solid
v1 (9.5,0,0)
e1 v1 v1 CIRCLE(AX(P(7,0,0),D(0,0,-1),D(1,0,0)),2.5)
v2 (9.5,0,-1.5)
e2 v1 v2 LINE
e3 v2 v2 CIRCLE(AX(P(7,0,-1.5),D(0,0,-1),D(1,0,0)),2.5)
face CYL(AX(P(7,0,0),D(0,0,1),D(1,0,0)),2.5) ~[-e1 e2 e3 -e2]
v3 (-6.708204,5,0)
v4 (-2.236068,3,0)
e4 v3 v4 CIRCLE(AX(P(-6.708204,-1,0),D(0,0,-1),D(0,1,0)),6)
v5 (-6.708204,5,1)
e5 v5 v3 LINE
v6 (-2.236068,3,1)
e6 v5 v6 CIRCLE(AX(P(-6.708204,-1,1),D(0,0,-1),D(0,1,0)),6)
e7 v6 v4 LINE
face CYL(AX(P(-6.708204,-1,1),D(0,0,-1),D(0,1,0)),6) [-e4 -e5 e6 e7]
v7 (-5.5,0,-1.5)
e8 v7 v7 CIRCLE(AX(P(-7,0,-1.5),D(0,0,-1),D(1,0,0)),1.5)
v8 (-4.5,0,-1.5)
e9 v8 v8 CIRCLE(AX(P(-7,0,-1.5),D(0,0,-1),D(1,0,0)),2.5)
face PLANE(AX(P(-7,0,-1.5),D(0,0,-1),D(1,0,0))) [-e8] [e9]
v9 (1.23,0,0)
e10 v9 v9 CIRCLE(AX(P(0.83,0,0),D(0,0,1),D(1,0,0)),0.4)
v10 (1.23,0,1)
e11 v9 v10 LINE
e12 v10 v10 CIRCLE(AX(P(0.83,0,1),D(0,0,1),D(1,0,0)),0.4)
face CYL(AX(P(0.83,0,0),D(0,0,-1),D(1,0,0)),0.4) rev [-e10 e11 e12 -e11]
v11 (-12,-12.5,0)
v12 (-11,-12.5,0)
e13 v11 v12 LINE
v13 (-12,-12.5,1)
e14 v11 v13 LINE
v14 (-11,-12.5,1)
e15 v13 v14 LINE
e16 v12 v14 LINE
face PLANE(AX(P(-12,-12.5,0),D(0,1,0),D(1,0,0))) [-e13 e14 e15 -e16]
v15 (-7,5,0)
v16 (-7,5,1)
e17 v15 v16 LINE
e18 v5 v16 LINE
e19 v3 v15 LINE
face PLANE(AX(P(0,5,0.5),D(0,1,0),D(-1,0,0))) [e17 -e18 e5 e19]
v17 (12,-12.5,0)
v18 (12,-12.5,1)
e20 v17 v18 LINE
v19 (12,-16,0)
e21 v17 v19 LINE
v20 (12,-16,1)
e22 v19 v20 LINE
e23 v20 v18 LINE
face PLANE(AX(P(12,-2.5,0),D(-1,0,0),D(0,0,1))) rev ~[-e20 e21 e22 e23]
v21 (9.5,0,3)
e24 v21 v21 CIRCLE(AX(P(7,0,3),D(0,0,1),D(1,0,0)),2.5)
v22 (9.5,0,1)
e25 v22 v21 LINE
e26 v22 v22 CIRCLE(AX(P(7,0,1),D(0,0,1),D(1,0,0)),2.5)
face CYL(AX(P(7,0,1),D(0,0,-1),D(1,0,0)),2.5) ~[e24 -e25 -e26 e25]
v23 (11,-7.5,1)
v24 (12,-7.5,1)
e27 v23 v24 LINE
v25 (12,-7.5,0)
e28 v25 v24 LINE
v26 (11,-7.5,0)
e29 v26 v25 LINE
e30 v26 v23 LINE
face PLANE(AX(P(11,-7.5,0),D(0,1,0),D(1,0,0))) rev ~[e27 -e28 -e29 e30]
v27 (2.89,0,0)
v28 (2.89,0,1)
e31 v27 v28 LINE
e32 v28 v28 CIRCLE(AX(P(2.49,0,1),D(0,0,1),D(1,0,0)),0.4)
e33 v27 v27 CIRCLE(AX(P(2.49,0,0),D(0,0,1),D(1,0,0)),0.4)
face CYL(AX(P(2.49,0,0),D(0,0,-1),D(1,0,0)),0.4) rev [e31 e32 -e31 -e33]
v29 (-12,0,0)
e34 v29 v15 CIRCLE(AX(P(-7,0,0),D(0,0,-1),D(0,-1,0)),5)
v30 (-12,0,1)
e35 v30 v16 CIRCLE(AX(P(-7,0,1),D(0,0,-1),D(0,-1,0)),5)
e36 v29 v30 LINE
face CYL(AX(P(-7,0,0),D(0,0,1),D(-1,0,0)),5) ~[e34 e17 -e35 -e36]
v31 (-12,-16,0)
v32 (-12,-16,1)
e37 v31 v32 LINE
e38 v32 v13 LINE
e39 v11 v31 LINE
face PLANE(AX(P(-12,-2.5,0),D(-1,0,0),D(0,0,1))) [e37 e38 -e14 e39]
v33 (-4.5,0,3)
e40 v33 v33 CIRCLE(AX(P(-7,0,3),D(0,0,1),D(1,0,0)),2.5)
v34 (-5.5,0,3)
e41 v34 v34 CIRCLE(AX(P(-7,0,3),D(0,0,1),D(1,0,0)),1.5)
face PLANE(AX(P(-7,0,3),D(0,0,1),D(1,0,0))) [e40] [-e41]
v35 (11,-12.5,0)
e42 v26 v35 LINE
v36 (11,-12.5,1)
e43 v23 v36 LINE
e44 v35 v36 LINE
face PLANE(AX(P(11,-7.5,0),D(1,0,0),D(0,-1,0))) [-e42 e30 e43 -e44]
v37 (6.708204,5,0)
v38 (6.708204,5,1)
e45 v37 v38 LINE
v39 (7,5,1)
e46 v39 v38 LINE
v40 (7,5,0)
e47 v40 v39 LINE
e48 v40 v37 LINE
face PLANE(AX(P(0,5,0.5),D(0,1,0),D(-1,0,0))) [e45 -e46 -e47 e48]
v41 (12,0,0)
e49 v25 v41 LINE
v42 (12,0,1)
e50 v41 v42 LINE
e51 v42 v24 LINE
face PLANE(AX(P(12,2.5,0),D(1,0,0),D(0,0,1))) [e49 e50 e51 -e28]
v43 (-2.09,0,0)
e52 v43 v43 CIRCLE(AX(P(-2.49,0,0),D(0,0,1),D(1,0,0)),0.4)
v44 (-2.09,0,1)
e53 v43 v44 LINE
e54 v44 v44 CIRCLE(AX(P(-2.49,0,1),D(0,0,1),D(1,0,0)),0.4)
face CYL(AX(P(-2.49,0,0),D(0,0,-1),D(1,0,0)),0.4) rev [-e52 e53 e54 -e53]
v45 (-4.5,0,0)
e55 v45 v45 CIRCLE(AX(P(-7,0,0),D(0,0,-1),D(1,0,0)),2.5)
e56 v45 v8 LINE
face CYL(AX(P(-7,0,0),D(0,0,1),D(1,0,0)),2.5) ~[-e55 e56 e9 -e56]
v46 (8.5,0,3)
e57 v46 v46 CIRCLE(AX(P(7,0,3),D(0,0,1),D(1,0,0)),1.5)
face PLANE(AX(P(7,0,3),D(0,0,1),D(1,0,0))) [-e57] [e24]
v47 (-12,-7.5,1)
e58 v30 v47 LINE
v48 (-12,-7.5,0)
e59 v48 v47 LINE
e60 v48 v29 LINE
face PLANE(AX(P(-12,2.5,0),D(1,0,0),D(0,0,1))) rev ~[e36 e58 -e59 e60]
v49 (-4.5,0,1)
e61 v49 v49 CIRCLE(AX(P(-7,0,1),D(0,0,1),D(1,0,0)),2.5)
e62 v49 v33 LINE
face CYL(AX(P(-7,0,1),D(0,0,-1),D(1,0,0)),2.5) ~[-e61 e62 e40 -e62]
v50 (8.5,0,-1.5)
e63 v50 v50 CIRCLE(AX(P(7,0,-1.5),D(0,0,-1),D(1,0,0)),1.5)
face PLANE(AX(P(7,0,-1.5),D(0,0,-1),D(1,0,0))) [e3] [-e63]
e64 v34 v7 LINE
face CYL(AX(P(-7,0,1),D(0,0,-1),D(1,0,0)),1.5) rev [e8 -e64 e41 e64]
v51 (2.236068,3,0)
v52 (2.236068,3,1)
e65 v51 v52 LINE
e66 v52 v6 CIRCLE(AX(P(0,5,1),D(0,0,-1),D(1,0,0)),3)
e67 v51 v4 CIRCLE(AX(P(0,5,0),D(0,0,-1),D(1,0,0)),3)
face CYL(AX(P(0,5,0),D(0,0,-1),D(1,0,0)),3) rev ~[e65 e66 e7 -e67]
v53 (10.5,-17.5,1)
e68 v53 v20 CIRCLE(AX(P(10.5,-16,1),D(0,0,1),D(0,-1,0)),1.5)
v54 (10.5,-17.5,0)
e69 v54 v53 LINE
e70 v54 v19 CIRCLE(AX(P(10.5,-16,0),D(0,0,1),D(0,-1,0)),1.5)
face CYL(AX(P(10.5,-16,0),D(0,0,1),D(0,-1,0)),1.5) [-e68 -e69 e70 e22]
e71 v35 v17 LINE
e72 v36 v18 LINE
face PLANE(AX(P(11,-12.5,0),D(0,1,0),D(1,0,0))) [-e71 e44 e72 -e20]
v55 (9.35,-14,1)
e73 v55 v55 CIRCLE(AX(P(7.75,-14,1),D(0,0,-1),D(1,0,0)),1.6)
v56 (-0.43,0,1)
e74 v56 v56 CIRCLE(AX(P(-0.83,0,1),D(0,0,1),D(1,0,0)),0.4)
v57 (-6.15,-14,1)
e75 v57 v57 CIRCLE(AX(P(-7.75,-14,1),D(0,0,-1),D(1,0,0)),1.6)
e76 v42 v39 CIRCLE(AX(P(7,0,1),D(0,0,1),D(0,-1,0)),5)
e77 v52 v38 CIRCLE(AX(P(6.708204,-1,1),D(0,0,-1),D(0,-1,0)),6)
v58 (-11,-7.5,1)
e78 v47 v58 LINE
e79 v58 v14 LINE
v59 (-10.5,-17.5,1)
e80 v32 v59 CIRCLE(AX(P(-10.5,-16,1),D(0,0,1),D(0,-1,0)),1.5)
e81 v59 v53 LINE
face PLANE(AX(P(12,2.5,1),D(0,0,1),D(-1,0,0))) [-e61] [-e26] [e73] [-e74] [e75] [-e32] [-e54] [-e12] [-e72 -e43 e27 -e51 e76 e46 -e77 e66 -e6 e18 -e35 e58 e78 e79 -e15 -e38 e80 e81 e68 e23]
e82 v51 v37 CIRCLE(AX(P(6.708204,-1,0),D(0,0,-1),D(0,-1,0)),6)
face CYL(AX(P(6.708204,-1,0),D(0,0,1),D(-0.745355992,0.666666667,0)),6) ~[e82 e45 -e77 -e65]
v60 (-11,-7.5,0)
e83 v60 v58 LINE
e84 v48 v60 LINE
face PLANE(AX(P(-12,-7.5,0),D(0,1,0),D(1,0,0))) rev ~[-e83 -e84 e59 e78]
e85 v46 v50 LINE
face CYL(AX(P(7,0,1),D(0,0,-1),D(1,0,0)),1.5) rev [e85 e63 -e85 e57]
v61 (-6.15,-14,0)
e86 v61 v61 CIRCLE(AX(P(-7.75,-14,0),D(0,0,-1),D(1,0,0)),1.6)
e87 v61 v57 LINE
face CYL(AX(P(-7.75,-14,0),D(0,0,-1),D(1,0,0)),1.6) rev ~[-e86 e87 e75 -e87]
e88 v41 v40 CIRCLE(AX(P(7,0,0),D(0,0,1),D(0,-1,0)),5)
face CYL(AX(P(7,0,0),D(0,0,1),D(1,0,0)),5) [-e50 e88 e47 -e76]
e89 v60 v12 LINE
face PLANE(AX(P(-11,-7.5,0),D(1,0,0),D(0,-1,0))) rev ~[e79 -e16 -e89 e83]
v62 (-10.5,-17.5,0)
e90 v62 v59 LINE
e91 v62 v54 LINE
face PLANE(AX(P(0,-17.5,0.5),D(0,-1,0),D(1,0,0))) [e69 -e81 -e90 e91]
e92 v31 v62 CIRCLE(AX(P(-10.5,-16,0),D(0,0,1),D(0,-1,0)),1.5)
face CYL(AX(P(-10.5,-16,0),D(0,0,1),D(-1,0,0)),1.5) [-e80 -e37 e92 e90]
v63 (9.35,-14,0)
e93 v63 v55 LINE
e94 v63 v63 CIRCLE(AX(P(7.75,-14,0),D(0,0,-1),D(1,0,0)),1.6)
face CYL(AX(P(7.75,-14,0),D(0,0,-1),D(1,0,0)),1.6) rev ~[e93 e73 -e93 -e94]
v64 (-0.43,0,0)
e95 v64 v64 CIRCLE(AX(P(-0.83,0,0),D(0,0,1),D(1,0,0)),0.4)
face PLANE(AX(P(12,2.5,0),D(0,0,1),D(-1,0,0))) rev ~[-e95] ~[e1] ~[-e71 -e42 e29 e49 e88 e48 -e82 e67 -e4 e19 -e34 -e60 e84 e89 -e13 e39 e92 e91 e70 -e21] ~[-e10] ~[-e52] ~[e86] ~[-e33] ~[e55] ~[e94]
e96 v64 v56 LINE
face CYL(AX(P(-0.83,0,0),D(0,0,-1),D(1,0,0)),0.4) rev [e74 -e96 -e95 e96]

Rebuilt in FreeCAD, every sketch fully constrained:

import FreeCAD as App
import Part
import Sketcher

V = App.Vector
Q = App.Units.Quantity


def edges_at(feature, points):
    """Names of the edges that pass closest to the given points."""
    edges = feature.Shape.Edges
    near = lambda p: min(range(len(edges)), key=lambda i: edges[i].distToShape(Part.Vertex(*p))[0])
    return sorted({f"Edge{near(p) + 1}" for p in points})

doc = App.newDocument("Part")
body = doc.addObject("PartDesign::Body", "Body")

# Sketch on XY plane
sketch1 = doc.addObject("Sketcher::SketchObject", "Sketch")
body.addObject(sketch1)
sketch1.AttachmentSupport = (doc.XY_Plane, [""])
sketch1.MapMode = "FlatFace"
sketch1.addGeometry([
    Part.LineSegment(V(-12, 2.5, 0), V(-12, -2.5, 0)),  # 0
    Part.LineSegment(V(-12, -2.5, 0), V(12, -2.5, 0)),  # 1
    Part.LineSegment(V(12, -2.5, 0), V(12, 2.5, 0)),  # 2
    Part.LineSegment(V(12, 2.5, 0), V(-12, 2.5, 0)),  # 3
    Part.Circle(V(-7, 0, 0), V(0, 0, 1), 1.5),  # 4
    Part.Circle(V(-2.49, 0, 0), V(0, 0, 1), 0.4),  # 5
    Part.Circle(V(-0.83, 0, 0), V(0, 0, 1), 0.4),  # 6
    Part.Circle(V(0.83, 0, 0), V(0, 0, 1), 0.4),  # 7
    Part.Circle(V(2.49, 0, 0), V(0, 0, 1), 0.4),  # 8
    Part.Circle(V(7, 0, 0), V(0, 0, 1), 1.5),  # 9
], False)
sketch1.addConstraint([
    Sketcher.Constraint("Coincident", 0, 2, 1, 1),
    Sketcher.Constraint("Coincident", 1, 2, 2, 1),
    Sketcher.Constraint("Coincident", 2, 2, 3, 1),
    Sketcher.Constraint("Coincident", 3, 2, 0, 1),
    Sketcher.Constraint("Vertical", 0),
    Sketcher.Constraint("Horizontal", 1),
    Sketcher.Constraint("Vertical", 2),
    Sketcher.Constraint("Horizontal", 3),
    Sketcher.Constraint("Equal", 5, 6),
    Sketcher.Constraint("Equal", 6, 7),
    Sketcher.Constraint("Equal", 7, 8),
    Sketcher.Constraint("Equal", 4, 9),
    Sketcher.Constraint("Symmetric", 6, 3, 7, 3, -1, 1),
    Sketcher.Constraint("Symmetric", 5, 3, 8, 3, -1, 1),
    Sketcher.Constraint("Symmetric", 4, 3, 9, 3, -1, 1),
    Sketcher.Constraint("Symmetric", 0, 2, 2, 2, -1, 1),
    Sketcher.Constraint("PointOnObject", 4, 3, -1),
    Sketcher.Constraint("PointOnObject", 5, 3, -1),
    Sketcher.Constraint("PointOnObject", 6, 3, -1),
    Sketcher.Constraint("Diameter", 4, Q("3 mm")),
    Sketcher.Constraint("Diameter", 5, Q("0.8 mm")),
    Sketcher.Constraint("DistanceX", 1, 1, 1, 2, Q("24 mm")),
    Sketcher.Constraint("DistanceY", 0, 2, 0, 1, Q("5 mm")),
    Sketcher.Constraint("DistanceX", 4, 3, -1, 1, Q("7 mm")),
    Sketcher.Constraint("DistanceX", 5, 3, -1, 1, Q("2.49 mm")),
    Sketcher.Constraint("DistanceX", 6, 3, -1, 1, Q("0.83 mm")),
])
pad1 = doc.addObject("PartDesign::Pad", "Pad")
body.addObject(pad1)
pad1.Profile = sketch1
pad1.Length = 1

# Sketch on XZ plane
sketch2 = doc.addObject("Sketcher::SketchObject", "Sketch001")
body.addObject(sketch2)
sketch2.AttachmentSupport = (doc.XZ_Plane, [""])
sketch2.MapMode = "FlatFace"
sketch2.AttachmentOffset = App.Placement(V(0, 0, 2.5), App.Rotation())
sketch2.addGeometry([
    Part.LineSegment(V(-12, 1, 0), V(-12, 0, 0)),
    Part.LineSegment(V(-12, 0, 0), V(12, 0, 0)),
    Part.LineSegment(V(12, 0, 0), V(12, 1, 0)),
    Part.LineSegment(V(12, 1, 0), V(-12, 1, 0)),
], False)
sketch2.addConstraint([
    Sketcher.Constraint("Coincident", 0, 2, 1, 1),
    Sketcher.Constraint("Coincident", 1, 2, 2, 1),
    Sketcher.Constraint("Coincident", 2, 2, 3, 1),
    Sketcher.Constraint("Coincident", 3, 2, 0, 1),
    Sketcher.Constraint("Vertical", 0),
    Sketcher.Constraint("Horizontal", 1),
    Sketcher.Constraint("Vertical", 2),
    Sketcher.Constraint("Horizontal", 3),
    Sketcher.Constraint("Symmetric", 0, 2, 1, 2, -1, 1),
    Sketcher.Constraint("DistanceX", 1, 1, 1, 2, Q("24 mm")),
    Sketcher.Constraint("DistanceY", 0, 2, 0, 1, Q("1 mm")),
])
pad2 = doc.addObject("PartDesign::Pad", "Pad001")
body.addObject(pad2)
pad2.Profile = sketch2
pad2.Length = 15

# Sketch on XY plane
sketch3 = doc.addObject("Sketcher::SketchObject", "Sketch002")
body.addObject(sketch3)
sketch3.AttachmentSupport = (doc.XY_Plane, [""])
sketch3.MapMode = "FlatFace"
sketch3.addGeometry([
    Part.Circle(V(-7.8, -14, 0), V(0, 0, 1), 1.6),
    Part.Circle(V(7.8, -14, 0), V(0, 0, 1), 1.6),
], False)
sketch3.addConstraint([
    Sketcher.Constraint("Equal", 0, 1),
    Sketcher.Constraint("Symmetric", 0, 3, 1, 3, -2),
    Sketcher.Constraint("Diameter", 0, Q("3.2 mm")),
    Sketcher.Constraint("DistanceY", 0, 3, -1, 1, Q("14 mm")),
    Sketcher.Constraint("DistanceX", 0, 3, 1, 3, Q("15.5 mm")),
])
pocket1 = doc.addObject("PartDesign::Pocket", "Pocket")
body.addObject(pocket1)
pocket1.Profile = sketch3
pocket1.Length = 25
pocket1.Reversed = True
doc.recompute()

fillet = doc.addObject("PartDesign::Fillet", "Fillet")
body.addObject(fillet)
fillet.Base = (pocket1, edges_at(pocket1, [(12, -17.5, 0.5), (-12, -17.5, 0.5)]))
fillet.Radius = 1.5

# Sketch on XY plane
sketch4 = doc.addObject("Sketcher::SketchObject", "Sketch003")
body.addObject(sketch4)
sketch4.AttachmentSupport = (doc.XY_Plane, [""])
sketch4.MapMode = "FlatFace"
sketch4.addGeometry([
    Part.LineSegment(V(11, -12.5, 0), V(11, -7.5, 0)),  # 0
    Part.LineSegment(V(11, -7.5, 0), V(12, -7.5, 0)),  # 1
    Part.LineSegment(V(12, -7.5, 0), V(12, -12.5, 0)),  # 2
    Part.LineSegment(V(12, -12.5, 0), V(11, -12.5, 0)),  # 3
    Part.LineSegment(V(-12, -12.5, 0), V(-12, -7.5, 0)),  # 4
    Part.LineSegment(V(-12, -7.5, 0), V(-11, -7.5, 0)),  # 5
    Part.LineSegment(V(-11, -7.5, 0), V(-11, -12.5, 0)),  # 6
    Part.LineSegment(V(-11, -12.5, 0), V(-12, -12.5, 0)),  # 7
], False)
sketch4.addConstraint([
    Sketcher.Constraint("Coincident", 0, 2, 1, 1),
    Sketcher.Constraint("Coincident", 1, 2, 2, 1),
    Sketcher.Constraint("Coincident", 2, 2, 3, 1),
    Sketcher.Constraint("Coincident", 3, 2, 0, 1),
    Sketcher.Constraint("Coincident", 4, 2, 5, 1),
    Sketcher.Constraint("Coincident", 5, 2, 6, 1),
    Sketcher.Constraint("Coincident", 6, 2, 7, 1),
    Sketcher.Constraint("Coincident", 7, 2, 4, 1),
    Sketcher.Constraint("Vertical", 0),
    Sketcher.Constraint("Horizontal", 1),
    Sketcher.Constraint("Vertical", 2),
    Sketcher.Constraint("Horizontal", 3),
    Sketcher.Constraint("Vertical", 4),
    Sketcher.Constraint("Horizontal", 5),
    Sketcher.Constraint("Vertical", 6),
    Sketcher.Constraint("Horizontal", 7),
    Sketcher.Constraint("Symmetric", 1, 2, 4, 2, -2),
    Sketcher.Constraint("Symmetric", 3, 2, 6, 2, -2),
    Sketcher.Constraint("DistanceX", 1, 1, 1, 2, Q("1 mm")),
    Sketcher.Constraint("DistanceY", 0, 1, 0, 2, Q("5 mm")),
    Sketcher.Constraint("DistanceX", -1, 1, 0, 2, Q("11 mm")),
    Sketcher.Constraint("DistanceY", 0, 2, -1, 1, Q("7.5 mm")),
])
pocket2 = doc.addObject("PartDesign::Pocket", "Pocket001")
body.addObject(pocket2)
pocket2.Profile = sketch4
pocket2.Type = "ThroughAll"
pocket2.Reversed = True

# Sketch on XZ plane
sketch5 = doc.addObject("Sketcher::SketchObject", "Sketch004")
body.addObject(sketch5)
sketch5.AttachmentSupport = (doc.XZ_Plane, [""])
sketch5.MapMode = "FlatFace"
sketch5.AttachmentOffset = App.Placement(V(0, 0, -2.5), App.Rotation())
sketch5.addGeometry([
    Part.LineSegment(V(12, 1, 0), V(12, 0, 0)),
    Part.LineSegment(V(12, 0, 0), V(-12, 0, 0)),
    Part.LineSegment(V(-12, 0, 0), V(-12, 1, 0)),
    Part.LineSegment(V(-12, 1, 0), V(12, 1, 0)),
], False)
sketch5.addConstraint([
    Sketcher.Constraint("Coincident", 0, 2, 1, 1),
    Sketcher.Constraint("Coincident", 1, 2, 2, 1),
    Sketcher.Constraint("Coincident", 2, 2, 3, 1),
    Sketcher.Constraint("Coincident", 3, 2, 0, 1),
    Sketcher.Constraint("Vertical", 0),
    Sketcher.Constraint("Horizontal", 1),
    Sketcher.Constraint("Vertical", 2),
    Sketcher.Constraint("Horizontal", 3),
    Sketcher.Constraint("Symmetric", 0, 2, 1, 2, -1, 1),
    Sketcher.Constraint("DistanceX", 1, 2, 1, 1, Q("24 mm")),
    Sketcher.Constraint("DistanceY", 0, 2, 0, 1, Q("1 mm")),
])
pad3 = doc.addObject("PartDesign::Pad", "Pad002")
body.addObject(pad3)
pad3.Profile = sketch5
pad3.Length = 2.5
pad3.Reversed = True
doc.recompute()

fillet2 = doc.addObject("PartDesign::Fillet", "Fillet001")
body.addObject(fillet2)
fillet2.Base = (pad3, edges_at(pad3, [(-12, 5, 0.5), (12, 5, 0.5)]))
fillet2.Radius = 5

# Sketch on XY plane
sketch6 = doc.addObject("Sketcher::SketchObject", "Sketch005")
body.addObject(sketch6)
sketch6.AttachmentSupport = (doc.XY_Plane, [""])
sketch6.MapMode = "FlatFace"
sketch6.addGeometry([
    Part.Circle(V(7, 0, 0), V(0, 0, 1), 2.5),
    Part.Circle(V(7, 0, 0), V(0, 0, 1), 1.5),
    Part.Circle(V(-7, 0, 0), V(0, 0, 1), 2.5),
    Part.Circle(V(-7, 0, 0), V(0, 0, 1), 1.5),
], False)
sketch6.addConstraint([
    Sketcher.Constraint("Coincident", 1, 3, 0, 3),
    Sketcher.Constraint("Coincident", 3, 3, 2, 3),
    Sketcher.Constraint("Equal", 0, 2),
    Sketcher.Constraint("Equal", 1, 3),
    Sketcher.Constraint("Symmetric", 0, 3, 2, 3, -1, 1),
    Sketcher.Constraint("PointOnObject", 0, 3, -1),
    Sketcher.Constraint("Diameter", 0, Q("5 mm")),
    Sketcher.Constraint("Diameter", 1, Q("3 mm")),
    Sketcher.Constraint("DistanceX", -1, 1, 0, 3, Q("7 mm")),
])
pad4 = doc.addObject("PartDesign::Pad", "Pad003")
body.addObject(pad4)
pad4.Profile = sketch6
pad4.Length = 1.5
pad4.Reversed = True

# Sketch on XY plane
sketch7 = doc.addObject("Sketcher::SketchObject", "Sketch006")
body.addObject(sketch7)
sketch7.AttachmentSupport = (doc.XY_Plane, [""])
sketch7.MapMode = "FlatFace"
sketch7.AttachmentOffset = App.Placement(V(0, 0, 1), App.Rotation())
sketch7.addGeometry([
    Part.Circle(V(7, 0, 0), V(0, 0, 1), 2.5),
    Part.Circle(V(7, 0, 0), V(0, 0, 1), 1.5),
    Part.Circle(V(-7, 0, 0), V(0, 0, 1), 2.5),
    Part.Circle(V(-7, 0, 0), V(0, 0, 1), 1.5),
], False)
sketch7.addConstraint([
    Sketcher.Constraint("Coincident", 1, 3, 0, 3),
    Sketcher.Constraint("Coincident", 3, 3, 2, 3),
    Sketcher.Constraint("Equal", 0, 2),
    Sketcher.Constraint("Equal", 1, 3),
    Sketcher.Constraint("Symmetric", 0, 3, 2, 3, -1, 1),
    Sketcher.Constraint("PointOnObject", 0, 3, -1),
    Sketcher.Constraint("Diameter", 0, Q("5 mm")),
    Sketcher.Constraint("Diameter", 1, Q("3 mm")),
    Sketcher.Constraint("DistanceX", -1, 1, 0, 3, Q("7 mm")),
])
pad5 = doc.addObject("PartDesign::Pad", "Pad004")
body.addObject(pad5)
pad5.Profile = sketch7
pad5.Length = 2

# Sketch on XY plane
sketch8 = doc.addObject("Sketcher::SketchObject", "Sketch007")
body.addObject(sketch8)
sketch8.AttachmentSupport = (doc.XY_Plane, [""])
sketch8.MapMode = "FlatFace"
sketch8.addGeometry(Part.Circle(V(0, 5, 0), V(0, 0, 1), 3), False)
sketch8.addConstraint([
    Sketcher.Constraint("PointOnObject", 0, 3, -2),
    Sketcher.Constraint("Diameter", 0, Q("6 mm")),
    Sketcher.Constraint("DistanceY", -1, 1, 0, 3, Q("5 mm")),
])
pocket3 = doc.addObject("PartDesign::Pocket", "Pocket002")
body.addObject(pocket3)
pocket3.Profile = sketch8
pocket3.Length = 25
pocket3.Reversed = True
doc.recompute()

fillet3 = doc.addObject("PartDesign::Fillet", "Fillet002")
body.addObject(fillet3)
fillet3.Base = (pocket3, edges_at(pocket3, [(-3, 5, 0.5), (3, 5, 0.5)]))
fillet3.Radius = 6

doc.recompute()
